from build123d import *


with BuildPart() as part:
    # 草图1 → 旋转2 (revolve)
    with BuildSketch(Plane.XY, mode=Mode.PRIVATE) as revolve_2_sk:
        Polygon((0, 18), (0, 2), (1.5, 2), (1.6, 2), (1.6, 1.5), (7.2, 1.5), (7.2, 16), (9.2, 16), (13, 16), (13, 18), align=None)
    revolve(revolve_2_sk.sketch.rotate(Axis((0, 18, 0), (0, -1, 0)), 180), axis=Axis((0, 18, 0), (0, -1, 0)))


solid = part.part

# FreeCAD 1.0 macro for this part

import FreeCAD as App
import Part
import Sketcher

doc = App.newDocument("Part")
body = doc.addObject("PartDesign::Body", "Body")

sketch1 = doc.addObject("Sketcher::SketchObject", "Sketch")
body.addObject(sketch1)
sketch1.AttachmentSupport = (doc.XY_Plane, [""])
sketch1.MapMode = "FlatFace"
sketch1.addGeometry([
    Part.LineSegment(App.Vector(0, 18, 0), App.Vector(0, 2, 0)),
    Part.LineSegment(App.Vector(0, 2, 0), App.Vector(1.6, 2, 0)),
    Part.LineSegment(App.Vector(1.6, 2, 0), App.Vector(1.6, 1.5, 0)),
    Part.LineSegment(App.Vector(1.6, 1.5, 0), App.Vector(7.2, 1.5, 0)),
    Part.LineSegment(App.Vector(7.2, 1.5, 0), App.Vector(7.2, 16, 0)),
    Part.LineSegment(App.Vector(7.2, 16, 0), App.Vector(13, 16, 0)),
    Part.LineSegment(App.Vector(13, 16, 0), App.Vector(13, 18, 0)),
    Part.LineSegment(App.Vector(13, 18, 0), App.Vector(0, 18, 0)),
], False)
sketch1.addConstraint([
    Sketcher.Constraint("Coincident", 0, 2, 1, 1),
    Sketcher.Constraint("Coincident", 1, 2, 2, 1),
    Sketcher.Constraint("Coincident", 2, 2, 3, 1),
    Sketcher.Constraint("Coincident", 3, 2, 4, 1),
    Sketcher.Constraint("Coincident", 4, 2, 5, 1),
    Sketcher.Constraint("Coincident", 5, 2, 6, 1),
    Sketcher.Constraint("Coincident", 6, 2, 7, 1),
    Sketcher.Constraint("Coincident", 7, 2, 0, 1),
    Sketcher.Constraint("Vertical", 0),
    Sketcher.Constraint("Horizontal", 1),
    Sketcher.Constraint("Vertical", 2),
    Sketcher.Constraint("Horizontal", 3),
    Sketcher.Constraint("Vertical", 4),
    Sketcher.Constraint("Horizontal", 5),
    Sketcher.Constraint("Vertical", 6),
    Sketcher.Constraint("Horizontal", 7),
    Sketcher.Constraint("PointOnObject", 0, 2, -2),
    Sketcher.Constraint("DistanceX", 7, 2, 7, 1, 13.0),
    Sketcher.Constraint("DistanceY", 0, 2, 0, 1, 16.0),
    Sketcher.Constraint("DistanceY", 6, 1, 6, 2, 2.0),
    Sketcher.Constraint("DistanceX", 1, 1, 1, 2, 1.6),
    Sketcher.Constraint("DistanceX", 3, 1, 3, 2, 5.6),
    Sketcher.Constraint("DistanceY", 2, 2, 2, 1, 0.5),
    Sketcher.Constraint("DistanceY", -1, 1, 0, 2, 2.0),
])
revolution = doc.addObject("PartDesign::Revolution", "Revolution")
body.addObject(revolution)
revolution.Profile = sketch1
revolution.ReferenceAxis = (sketch1, ["V_Axis"])
revolution.Angle = 360

doc.recompute()
